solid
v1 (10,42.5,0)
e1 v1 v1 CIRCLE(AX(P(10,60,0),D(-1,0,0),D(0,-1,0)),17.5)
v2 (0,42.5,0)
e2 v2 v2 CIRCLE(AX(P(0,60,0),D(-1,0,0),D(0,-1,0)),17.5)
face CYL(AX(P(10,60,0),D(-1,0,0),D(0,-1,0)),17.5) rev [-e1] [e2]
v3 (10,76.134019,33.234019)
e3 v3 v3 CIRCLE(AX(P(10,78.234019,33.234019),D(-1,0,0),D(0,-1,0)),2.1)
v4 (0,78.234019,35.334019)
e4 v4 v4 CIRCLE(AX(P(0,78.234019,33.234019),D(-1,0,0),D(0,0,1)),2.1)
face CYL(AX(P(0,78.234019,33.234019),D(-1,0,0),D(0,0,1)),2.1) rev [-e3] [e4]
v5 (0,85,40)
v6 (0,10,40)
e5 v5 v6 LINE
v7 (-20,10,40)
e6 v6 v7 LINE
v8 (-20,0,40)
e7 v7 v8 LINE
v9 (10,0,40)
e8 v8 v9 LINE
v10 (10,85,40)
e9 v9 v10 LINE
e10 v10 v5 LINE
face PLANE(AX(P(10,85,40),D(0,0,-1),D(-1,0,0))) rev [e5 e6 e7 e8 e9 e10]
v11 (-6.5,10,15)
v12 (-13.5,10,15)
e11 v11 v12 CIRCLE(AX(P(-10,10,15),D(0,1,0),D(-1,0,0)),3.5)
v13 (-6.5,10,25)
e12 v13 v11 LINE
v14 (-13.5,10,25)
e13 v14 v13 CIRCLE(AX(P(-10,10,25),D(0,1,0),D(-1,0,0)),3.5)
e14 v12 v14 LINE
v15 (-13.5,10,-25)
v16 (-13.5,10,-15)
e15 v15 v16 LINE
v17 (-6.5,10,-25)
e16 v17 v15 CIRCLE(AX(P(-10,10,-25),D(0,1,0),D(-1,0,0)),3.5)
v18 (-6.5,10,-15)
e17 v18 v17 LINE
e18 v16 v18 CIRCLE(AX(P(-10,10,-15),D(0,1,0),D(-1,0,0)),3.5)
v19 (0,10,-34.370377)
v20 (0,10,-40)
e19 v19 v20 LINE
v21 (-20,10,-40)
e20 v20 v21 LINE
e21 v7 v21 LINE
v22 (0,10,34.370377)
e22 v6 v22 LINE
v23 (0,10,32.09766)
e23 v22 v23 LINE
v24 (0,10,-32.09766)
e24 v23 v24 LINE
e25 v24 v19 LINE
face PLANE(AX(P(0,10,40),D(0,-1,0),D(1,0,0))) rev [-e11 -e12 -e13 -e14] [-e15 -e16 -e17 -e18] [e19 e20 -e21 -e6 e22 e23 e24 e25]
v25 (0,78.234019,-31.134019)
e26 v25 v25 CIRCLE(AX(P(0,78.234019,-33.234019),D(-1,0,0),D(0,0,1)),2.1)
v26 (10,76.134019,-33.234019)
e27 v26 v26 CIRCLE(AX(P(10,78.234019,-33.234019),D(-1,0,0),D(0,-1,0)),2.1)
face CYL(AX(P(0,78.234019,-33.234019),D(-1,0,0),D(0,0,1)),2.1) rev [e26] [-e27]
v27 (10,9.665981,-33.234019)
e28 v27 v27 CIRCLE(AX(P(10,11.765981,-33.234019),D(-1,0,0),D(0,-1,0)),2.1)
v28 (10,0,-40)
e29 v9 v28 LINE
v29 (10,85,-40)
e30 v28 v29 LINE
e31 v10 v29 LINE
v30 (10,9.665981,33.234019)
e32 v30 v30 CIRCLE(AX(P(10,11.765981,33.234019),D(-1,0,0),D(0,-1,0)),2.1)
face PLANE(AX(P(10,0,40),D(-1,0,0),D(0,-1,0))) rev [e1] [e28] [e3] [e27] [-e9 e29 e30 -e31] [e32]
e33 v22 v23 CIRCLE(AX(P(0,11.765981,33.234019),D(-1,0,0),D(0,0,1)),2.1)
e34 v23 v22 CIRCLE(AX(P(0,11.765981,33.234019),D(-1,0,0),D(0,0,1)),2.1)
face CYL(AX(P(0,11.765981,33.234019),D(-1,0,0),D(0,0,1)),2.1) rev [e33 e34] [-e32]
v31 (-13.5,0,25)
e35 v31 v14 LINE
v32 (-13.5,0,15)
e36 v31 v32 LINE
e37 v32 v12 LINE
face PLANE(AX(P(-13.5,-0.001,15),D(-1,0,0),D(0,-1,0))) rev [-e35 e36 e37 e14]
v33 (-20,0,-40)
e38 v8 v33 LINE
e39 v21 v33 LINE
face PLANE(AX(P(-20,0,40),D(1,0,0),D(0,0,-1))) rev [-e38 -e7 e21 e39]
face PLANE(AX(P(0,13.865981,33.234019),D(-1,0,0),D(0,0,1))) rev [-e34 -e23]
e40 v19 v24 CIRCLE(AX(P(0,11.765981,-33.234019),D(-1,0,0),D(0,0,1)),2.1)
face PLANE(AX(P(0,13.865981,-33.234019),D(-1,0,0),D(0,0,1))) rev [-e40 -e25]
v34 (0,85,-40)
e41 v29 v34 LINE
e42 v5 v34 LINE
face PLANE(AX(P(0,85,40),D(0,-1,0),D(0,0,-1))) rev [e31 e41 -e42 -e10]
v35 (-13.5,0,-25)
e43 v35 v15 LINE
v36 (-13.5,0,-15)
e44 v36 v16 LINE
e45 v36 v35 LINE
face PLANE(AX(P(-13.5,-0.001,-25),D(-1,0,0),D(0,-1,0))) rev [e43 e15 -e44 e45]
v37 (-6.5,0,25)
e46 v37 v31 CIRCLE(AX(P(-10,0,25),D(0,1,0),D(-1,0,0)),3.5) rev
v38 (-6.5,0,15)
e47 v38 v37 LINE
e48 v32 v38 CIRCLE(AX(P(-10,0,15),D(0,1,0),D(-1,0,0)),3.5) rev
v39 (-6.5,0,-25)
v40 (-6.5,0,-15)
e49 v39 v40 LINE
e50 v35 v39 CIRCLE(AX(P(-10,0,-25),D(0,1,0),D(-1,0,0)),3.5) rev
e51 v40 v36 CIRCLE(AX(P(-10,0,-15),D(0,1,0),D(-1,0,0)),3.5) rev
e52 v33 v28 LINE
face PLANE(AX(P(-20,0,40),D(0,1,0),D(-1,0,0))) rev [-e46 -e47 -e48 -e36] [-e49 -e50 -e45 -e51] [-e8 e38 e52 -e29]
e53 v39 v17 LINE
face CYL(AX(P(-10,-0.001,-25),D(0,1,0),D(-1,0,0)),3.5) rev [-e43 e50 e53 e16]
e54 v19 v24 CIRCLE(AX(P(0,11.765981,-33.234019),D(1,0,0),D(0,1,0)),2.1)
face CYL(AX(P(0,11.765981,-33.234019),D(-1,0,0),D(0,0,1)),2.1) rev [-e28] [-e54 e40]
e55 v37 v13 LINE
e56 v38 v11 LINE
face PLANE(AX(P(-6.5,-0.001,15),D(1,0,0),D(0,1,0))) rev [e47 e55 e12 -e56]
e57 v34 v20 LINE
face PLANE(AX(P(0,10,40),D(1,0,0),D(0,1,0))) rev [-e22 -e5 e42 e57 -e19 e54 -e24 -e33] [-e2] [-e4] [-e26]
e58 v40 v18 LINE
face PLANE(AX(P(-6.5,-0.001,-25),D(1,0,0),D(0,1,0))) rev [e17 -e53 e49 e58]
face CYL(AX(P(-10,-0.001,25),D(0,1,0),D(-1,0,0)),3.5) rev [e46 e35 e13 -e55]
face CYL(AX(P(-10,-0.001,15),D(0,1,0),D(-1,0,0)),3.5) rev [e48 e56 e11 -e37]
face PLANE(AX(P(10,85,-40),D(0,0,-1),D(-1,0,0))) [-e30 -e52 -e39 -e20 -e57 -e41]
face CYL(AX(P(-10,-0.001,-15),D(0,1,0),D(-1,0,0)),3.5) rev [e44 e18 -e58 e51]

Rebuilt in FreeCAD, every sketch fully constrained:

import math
import FreeCAD as App
import Part
import Sketcher

V = App.Vector
Q = App.Units.Quantity

doc = App.newDocument("Part")
body = doc.addObject("PartDesign::Body", "Body")

# Sketch on XY plane
sketch1 = doc.addObject("Sketcher::SketchObject", "Sketch")
body.addObject(sketch1)
sketch1.AttachmentSupport = (doc.XY_Plane, [""])
sketch1.MapMode = "FlatFace"
sketch1.addGeometry([
    Part.LineSegment(V(-20, 0, 0), V(10, 0, 0)),  # 0
    Part.LineSegment(V(10, 0, 0), V(10, 85, 0)),  # 1
    Part.LineSegment(V(10, 85, 0), V(0, 85, 0)),  # 2
    Part.LineSegment(V(0, 85, 0), V(0, 10, 0)),  # 3
    Part.LineSegment(V(0, 10, 0), V(-20, 10, 0)),  # 4
    Part.LineSegment(V(-20, 10, 0), V(-20, 0, 0)),  # 5
], False)
sketch1.addConstraint([
    Sketcher.Constraint("Coincident", 0, 2, 1, 1),
    Sketcher.Constraint("Coincident", 1, 2, 2, 1),
    Sketcher.Constraint("Coincident", 2, 2, 3, 1),
    Sketcher.Constraint("Coincident", 3, 2, 4, 1),
    Sketcher.Constraint("Coincident", 4, 2, 5, 1),
    Sketcher.Constraint("Coincident", 5, 2, 0, 1),
    Sketcher.Constraint("Horizontal", 0),
    Sketcher.Constraint("Vertical", 1),
    Sketcher.Constraint("Horizontal", 2),
    Sketcher.Constraint("Vertical", 3),
    Sketcher.Constraint("Horizontal", 4),
    Sketcher.Constraint("Vertical", 5),
    Sketcher.Constraint("PointOnObject", 0, 2, -1),
    Sketcher.Constraint("PointOnObject", 2, 2, -2),
    Sketcher.Constraint("Equal", 2, 5),
    Sketcher.Constraint("DistanceX", 0, 1, 0, 2, Q("30 mm")),
    Sketcher.Constraint("DistanceX", 2, 2, 2, 1, Q("10 mm")),
    Sketcher.Constraint("DistanceY", 1, 1, 1, 2, Q("85 mm")),
])
pad1 = doc.addObject("PartDesign::Pad", "Pad")
body.addObject(pad1)
pad1.Profile = sketch1
pad1.Length = 80
pad1.Midplane = True

# Sketch on XZ plane
sketch2 = doc.addObject("Sketcher::SketchObject", "Sketch001")
body.addObject(sketch2)
sketch2.AttachmentSupport = (doc.XZ_Plane, [""])
sketch2.MapMode = "FlatFace"
sketch2.AttachmentOffset = App.Placement(V(0, 0, -10), App.Rotation())
sketch2.addGeometry([
    Part.LineSegment(V(-13.5, -25, 0), V(-13.5, -15, 0)),
    Part.ArcOfCircle(Part.Circle(V(-10, -15, 0), V(0, 0, 1), 3.5), math.radians(0), math.radians(180)),
    Part.LineSegment(V(-6.5, -15, 0), V(-6.5, -25, 0)),
    Part.ArcOfCircle(Part.Circle(V(-10, -25, 0), V(0, 0, 1), 3.5), math.radians(180), math.radians(360)),
], False)
sketch2.addConstraint([
    Sketcher.Constraint("Tangent", 0, 2, 1, 2),
    Sketcher.Constraint("Tangent", 1, 1, 2, 1),
    Sketcher.Constraint("Tangent", 2, 2, 3, 2),
    Sketcher.Constraint("Tangent", 3, 1, 0, 1),
    Sketcher.Constraint("Vertical", 0),
    Sketcher.Constraint("Vertical", 2),
    Sketcher.Constraint("Radius", 1, Q("3.5 mm")),
    Sketcher.Constraint("DistanceY", 0, 1, 0, 2, Q("10 mm")),
    Sketcher.Constraint("DistanceX", 1, 3, -1, 1, Q("10 mm")),
    Sketcher.Constraint("DistanceY", 1, 3, -1, 1, Q("15 mm")),
])
pocket1 = doc.addObject("PartDesign::Pocket", "Pocket")
body.addObject(pocket1)
pocket1.Profile = sketch2
pocket1.Type = "UpToFirst"
pocket1.Reversed = True

# Sketch on XZ plane
sketch3 = doc.addObject("Sketcher::SketchObject", "Sketch002")
body.addObject(sketch3)
sketch3.AttachmentSupport = (doc.XZ_Plane, [""])
sketch3.MapMode = "FlatFace"
sketch3.AttachmentOffset = App.Placement(V(0, 0, -10), App.Rotation())
sketch3.addGeometry([
    Part.LineSegment(V(-13.5, 15, 0), V(-13.5, 25, 0)),
    Part.ArcOfCircle(Part.Circle(V(-10, 25, 0), V(0, 0, 1), 3.5), math.radians(0), math.radians(180)),
    Part.LineSegment(V(-6.5, 25, 0), V(-6.5, 15, 0)),
    Part.ArcOfCircle(Part.Circle(V(-10, 15, 0), V(0, 0, 1), 3.5), math.radians(180), math.radians(360)),
], False)
sketch3.addConstraint([
    Sketcher.Constraint("Tangent", 0, 2, 1, 2),
    Sketcher.Constraint("Tangent", 1, 1, 2, 1),
    Sketcher.Constraint("Tangent", 2, 2, 3, 2),
    Sketcher.Constraint("Tangent", 3, 1, 0, 1),
    Sketcher.Constraint("Vertical", 0),
    Sketcher.Constraint("Vertical", 2),
    Sketcher.Constraint("Radius", 1, Q("3.5 mm")),
    Sketcher.Constraint("DistanceY", 0, 1, 0, 2, Q("10 mm")),
    Sketcher.Constraint("DistanceX", 1, 3, -1, 1, Q("10 mm")),
    Sketcher.Constraint("DistanceY", -1, 1, 1, 3, Q("25 mm")),
])
pocket2 = doc.addObject("PartDesign::Pocket", "Pocket001")
body.addObject(pocket2)
pocket2.Profile = sketch3
pocket2.Type = "UpToFirst"
pocket2.Reversed = True

# Sketch on XZ plane
sketch4 = doc.addObject("Sketcher::SketchObject", "Sketch003")
body.addObject(sketch4)
sketch4.AttachmentSupport = (doc.XZ_Plane, [""])
sketch4.MapMode = "FlatFace"
sketch4.AttachmentOffset = App.Placement(V(0, 0, -78.234019), App.Rotation())
sketch4.addGeometry([
    Part.LineSegment(V(15.3, 33.2, 0), V(0, 33.2, 0)),
    Part.LineSegment(V(0, 33.2, 0), V(0, 35.3, 0)),
    Part.LineSegment(V(0, 35.3, 0), V(14, 35.3, 0)),
    Part.LineSegment(V(14, 35.3, 0), V(15.3, 33.2, 0)),
], False)
sketch4.addGeometry(Part.LineSegment(V(0, 33.2, 0), V(15.3, 33.2, 0)), True)  # axis
sketch4.addConstraint([
    Sketcher.Constraint("Coincident", 0, 2, 1, 1),
    Sketcher.Constraint("Coincident", 1, 2, 2, 1),
    Sketcher.Constraint("Coincident", 2, 2, 3, 1),
    Sketcher.Constraint("Coincident", 3, 2, 0, 1),
    Sketcher.Constraint("Horizontal", 0),
    Sketcher.Constraint("Vertical", 1),
    Sketcher.Constraint("Horizontal", 2),
    Sketcher.Constraint("Horizontal", 4),
    Sketcher.Constraint("Coincident", 4, 1, 0, 2),
    Sketcher.Constraint("PointOnObject", 0, 2, -2),
    Sketcher.Constraint("Equal", 0, 4),
    Sketcher.Constraint("DistanceX", 2, 1, 2, 2, Q("14 mm")),
    Sketcher.Constraint("Angle", 3, Q("-59 deg")),
    Sketcher.Constraint("DistanceY", 1, 1, 1, 2, Q("2.1 mm")),
    Sketcher.Constraint("DistanceY", -1, 1, 0, 2, Q("33.234019 mm")),
])
groove = doc.addObject("PartDesign::Groove", "Groove")
body.addObject(groove)
groove.Profile = sketch4
groove.ReferenceAxis = (sketch4, ["Axis0"])
groove.Angle = 360
doc.recompute()

linearpattern = doc.addObject("PartDesign::LinearPattern", "LinearPattern")
body.addObject(linearpattern)
linearpattern.Originals = [groove]
linearpattern.Direction = (doc.Z_Axis, [""])
linearpattern.Mode = "offset"
linearpattern.Offset = 66.468037
linearpattern.Occurrences = 2
linearpattern.Reversed = True
body.Tip = linearpattern
doc.recompute()

datumline = doc.addObject("PartDesign::Line", "DatumLine")
body.addObject(datumline)
datumline.Placement = App.Placement(V(0, 0, 0), App.Rotation(V(0, 0, 1), V(0, -0.707106781, -0.707106781)))
linearpattern2 = doc.addObject("PartDesign::LinearPattern", "LinearPattern001")
body.addObject(linearpattern2)
linearpattern2.Originals = [groove]
linearpattern2.Direction = (datumline, [""])
linearpattern2.Mode = "offset"
linearpattern2.Offset = 94
linearpattern2.Occurrences = 2
body.Tip = linearpattern2
doc.recompute()

linearpattern3 = doc.addObject("PartDesign::LinearPattern", "LinearPattern002")
body.addObject(linearpattern3)
linearpattern3.Originals = [groove]
linearpattern3.Direction = (doc.Y_Axis, [""])
linearpattern3.Mode = "offset"
linearpattern3.Offset = 66.468037
linearpattern3.Occurrences = 2
linearpattern3.Reversed = True
body.Tip = linearpattern3

# Sketch on YZ plane
sketch5 = doc.addObject("Sketcher::SketchObject", "Sketch004")
body.addObject(sketch5)
sketch5.AttachmentSupport = (doc.YZ_Plane, [""])
sketch5.MapMode = "FlatFace"
sketch5.addGeometry(Part.Circle(V(60, 0, 0), V(0, 0, 1), 18), False)
sketch5.addConstraint([
    Sketcher.Constraint("PointOnObject", 0, 3, -1),
    Sketcher.Constraint("Diameter", 0, Q("35 mm")),
    Sketcher.Constraint("DistanceX", -1, 1, 0, 3, Q("60 mm")),
])
pocket3 = doc.addObject("PartDesign::Pocket", "Pocket002")
body.addObject(pocket3)
pocket3.Profile = sketch5
pocket3.Length = 10
pocket3.Reversed = True

doc.recompute()
